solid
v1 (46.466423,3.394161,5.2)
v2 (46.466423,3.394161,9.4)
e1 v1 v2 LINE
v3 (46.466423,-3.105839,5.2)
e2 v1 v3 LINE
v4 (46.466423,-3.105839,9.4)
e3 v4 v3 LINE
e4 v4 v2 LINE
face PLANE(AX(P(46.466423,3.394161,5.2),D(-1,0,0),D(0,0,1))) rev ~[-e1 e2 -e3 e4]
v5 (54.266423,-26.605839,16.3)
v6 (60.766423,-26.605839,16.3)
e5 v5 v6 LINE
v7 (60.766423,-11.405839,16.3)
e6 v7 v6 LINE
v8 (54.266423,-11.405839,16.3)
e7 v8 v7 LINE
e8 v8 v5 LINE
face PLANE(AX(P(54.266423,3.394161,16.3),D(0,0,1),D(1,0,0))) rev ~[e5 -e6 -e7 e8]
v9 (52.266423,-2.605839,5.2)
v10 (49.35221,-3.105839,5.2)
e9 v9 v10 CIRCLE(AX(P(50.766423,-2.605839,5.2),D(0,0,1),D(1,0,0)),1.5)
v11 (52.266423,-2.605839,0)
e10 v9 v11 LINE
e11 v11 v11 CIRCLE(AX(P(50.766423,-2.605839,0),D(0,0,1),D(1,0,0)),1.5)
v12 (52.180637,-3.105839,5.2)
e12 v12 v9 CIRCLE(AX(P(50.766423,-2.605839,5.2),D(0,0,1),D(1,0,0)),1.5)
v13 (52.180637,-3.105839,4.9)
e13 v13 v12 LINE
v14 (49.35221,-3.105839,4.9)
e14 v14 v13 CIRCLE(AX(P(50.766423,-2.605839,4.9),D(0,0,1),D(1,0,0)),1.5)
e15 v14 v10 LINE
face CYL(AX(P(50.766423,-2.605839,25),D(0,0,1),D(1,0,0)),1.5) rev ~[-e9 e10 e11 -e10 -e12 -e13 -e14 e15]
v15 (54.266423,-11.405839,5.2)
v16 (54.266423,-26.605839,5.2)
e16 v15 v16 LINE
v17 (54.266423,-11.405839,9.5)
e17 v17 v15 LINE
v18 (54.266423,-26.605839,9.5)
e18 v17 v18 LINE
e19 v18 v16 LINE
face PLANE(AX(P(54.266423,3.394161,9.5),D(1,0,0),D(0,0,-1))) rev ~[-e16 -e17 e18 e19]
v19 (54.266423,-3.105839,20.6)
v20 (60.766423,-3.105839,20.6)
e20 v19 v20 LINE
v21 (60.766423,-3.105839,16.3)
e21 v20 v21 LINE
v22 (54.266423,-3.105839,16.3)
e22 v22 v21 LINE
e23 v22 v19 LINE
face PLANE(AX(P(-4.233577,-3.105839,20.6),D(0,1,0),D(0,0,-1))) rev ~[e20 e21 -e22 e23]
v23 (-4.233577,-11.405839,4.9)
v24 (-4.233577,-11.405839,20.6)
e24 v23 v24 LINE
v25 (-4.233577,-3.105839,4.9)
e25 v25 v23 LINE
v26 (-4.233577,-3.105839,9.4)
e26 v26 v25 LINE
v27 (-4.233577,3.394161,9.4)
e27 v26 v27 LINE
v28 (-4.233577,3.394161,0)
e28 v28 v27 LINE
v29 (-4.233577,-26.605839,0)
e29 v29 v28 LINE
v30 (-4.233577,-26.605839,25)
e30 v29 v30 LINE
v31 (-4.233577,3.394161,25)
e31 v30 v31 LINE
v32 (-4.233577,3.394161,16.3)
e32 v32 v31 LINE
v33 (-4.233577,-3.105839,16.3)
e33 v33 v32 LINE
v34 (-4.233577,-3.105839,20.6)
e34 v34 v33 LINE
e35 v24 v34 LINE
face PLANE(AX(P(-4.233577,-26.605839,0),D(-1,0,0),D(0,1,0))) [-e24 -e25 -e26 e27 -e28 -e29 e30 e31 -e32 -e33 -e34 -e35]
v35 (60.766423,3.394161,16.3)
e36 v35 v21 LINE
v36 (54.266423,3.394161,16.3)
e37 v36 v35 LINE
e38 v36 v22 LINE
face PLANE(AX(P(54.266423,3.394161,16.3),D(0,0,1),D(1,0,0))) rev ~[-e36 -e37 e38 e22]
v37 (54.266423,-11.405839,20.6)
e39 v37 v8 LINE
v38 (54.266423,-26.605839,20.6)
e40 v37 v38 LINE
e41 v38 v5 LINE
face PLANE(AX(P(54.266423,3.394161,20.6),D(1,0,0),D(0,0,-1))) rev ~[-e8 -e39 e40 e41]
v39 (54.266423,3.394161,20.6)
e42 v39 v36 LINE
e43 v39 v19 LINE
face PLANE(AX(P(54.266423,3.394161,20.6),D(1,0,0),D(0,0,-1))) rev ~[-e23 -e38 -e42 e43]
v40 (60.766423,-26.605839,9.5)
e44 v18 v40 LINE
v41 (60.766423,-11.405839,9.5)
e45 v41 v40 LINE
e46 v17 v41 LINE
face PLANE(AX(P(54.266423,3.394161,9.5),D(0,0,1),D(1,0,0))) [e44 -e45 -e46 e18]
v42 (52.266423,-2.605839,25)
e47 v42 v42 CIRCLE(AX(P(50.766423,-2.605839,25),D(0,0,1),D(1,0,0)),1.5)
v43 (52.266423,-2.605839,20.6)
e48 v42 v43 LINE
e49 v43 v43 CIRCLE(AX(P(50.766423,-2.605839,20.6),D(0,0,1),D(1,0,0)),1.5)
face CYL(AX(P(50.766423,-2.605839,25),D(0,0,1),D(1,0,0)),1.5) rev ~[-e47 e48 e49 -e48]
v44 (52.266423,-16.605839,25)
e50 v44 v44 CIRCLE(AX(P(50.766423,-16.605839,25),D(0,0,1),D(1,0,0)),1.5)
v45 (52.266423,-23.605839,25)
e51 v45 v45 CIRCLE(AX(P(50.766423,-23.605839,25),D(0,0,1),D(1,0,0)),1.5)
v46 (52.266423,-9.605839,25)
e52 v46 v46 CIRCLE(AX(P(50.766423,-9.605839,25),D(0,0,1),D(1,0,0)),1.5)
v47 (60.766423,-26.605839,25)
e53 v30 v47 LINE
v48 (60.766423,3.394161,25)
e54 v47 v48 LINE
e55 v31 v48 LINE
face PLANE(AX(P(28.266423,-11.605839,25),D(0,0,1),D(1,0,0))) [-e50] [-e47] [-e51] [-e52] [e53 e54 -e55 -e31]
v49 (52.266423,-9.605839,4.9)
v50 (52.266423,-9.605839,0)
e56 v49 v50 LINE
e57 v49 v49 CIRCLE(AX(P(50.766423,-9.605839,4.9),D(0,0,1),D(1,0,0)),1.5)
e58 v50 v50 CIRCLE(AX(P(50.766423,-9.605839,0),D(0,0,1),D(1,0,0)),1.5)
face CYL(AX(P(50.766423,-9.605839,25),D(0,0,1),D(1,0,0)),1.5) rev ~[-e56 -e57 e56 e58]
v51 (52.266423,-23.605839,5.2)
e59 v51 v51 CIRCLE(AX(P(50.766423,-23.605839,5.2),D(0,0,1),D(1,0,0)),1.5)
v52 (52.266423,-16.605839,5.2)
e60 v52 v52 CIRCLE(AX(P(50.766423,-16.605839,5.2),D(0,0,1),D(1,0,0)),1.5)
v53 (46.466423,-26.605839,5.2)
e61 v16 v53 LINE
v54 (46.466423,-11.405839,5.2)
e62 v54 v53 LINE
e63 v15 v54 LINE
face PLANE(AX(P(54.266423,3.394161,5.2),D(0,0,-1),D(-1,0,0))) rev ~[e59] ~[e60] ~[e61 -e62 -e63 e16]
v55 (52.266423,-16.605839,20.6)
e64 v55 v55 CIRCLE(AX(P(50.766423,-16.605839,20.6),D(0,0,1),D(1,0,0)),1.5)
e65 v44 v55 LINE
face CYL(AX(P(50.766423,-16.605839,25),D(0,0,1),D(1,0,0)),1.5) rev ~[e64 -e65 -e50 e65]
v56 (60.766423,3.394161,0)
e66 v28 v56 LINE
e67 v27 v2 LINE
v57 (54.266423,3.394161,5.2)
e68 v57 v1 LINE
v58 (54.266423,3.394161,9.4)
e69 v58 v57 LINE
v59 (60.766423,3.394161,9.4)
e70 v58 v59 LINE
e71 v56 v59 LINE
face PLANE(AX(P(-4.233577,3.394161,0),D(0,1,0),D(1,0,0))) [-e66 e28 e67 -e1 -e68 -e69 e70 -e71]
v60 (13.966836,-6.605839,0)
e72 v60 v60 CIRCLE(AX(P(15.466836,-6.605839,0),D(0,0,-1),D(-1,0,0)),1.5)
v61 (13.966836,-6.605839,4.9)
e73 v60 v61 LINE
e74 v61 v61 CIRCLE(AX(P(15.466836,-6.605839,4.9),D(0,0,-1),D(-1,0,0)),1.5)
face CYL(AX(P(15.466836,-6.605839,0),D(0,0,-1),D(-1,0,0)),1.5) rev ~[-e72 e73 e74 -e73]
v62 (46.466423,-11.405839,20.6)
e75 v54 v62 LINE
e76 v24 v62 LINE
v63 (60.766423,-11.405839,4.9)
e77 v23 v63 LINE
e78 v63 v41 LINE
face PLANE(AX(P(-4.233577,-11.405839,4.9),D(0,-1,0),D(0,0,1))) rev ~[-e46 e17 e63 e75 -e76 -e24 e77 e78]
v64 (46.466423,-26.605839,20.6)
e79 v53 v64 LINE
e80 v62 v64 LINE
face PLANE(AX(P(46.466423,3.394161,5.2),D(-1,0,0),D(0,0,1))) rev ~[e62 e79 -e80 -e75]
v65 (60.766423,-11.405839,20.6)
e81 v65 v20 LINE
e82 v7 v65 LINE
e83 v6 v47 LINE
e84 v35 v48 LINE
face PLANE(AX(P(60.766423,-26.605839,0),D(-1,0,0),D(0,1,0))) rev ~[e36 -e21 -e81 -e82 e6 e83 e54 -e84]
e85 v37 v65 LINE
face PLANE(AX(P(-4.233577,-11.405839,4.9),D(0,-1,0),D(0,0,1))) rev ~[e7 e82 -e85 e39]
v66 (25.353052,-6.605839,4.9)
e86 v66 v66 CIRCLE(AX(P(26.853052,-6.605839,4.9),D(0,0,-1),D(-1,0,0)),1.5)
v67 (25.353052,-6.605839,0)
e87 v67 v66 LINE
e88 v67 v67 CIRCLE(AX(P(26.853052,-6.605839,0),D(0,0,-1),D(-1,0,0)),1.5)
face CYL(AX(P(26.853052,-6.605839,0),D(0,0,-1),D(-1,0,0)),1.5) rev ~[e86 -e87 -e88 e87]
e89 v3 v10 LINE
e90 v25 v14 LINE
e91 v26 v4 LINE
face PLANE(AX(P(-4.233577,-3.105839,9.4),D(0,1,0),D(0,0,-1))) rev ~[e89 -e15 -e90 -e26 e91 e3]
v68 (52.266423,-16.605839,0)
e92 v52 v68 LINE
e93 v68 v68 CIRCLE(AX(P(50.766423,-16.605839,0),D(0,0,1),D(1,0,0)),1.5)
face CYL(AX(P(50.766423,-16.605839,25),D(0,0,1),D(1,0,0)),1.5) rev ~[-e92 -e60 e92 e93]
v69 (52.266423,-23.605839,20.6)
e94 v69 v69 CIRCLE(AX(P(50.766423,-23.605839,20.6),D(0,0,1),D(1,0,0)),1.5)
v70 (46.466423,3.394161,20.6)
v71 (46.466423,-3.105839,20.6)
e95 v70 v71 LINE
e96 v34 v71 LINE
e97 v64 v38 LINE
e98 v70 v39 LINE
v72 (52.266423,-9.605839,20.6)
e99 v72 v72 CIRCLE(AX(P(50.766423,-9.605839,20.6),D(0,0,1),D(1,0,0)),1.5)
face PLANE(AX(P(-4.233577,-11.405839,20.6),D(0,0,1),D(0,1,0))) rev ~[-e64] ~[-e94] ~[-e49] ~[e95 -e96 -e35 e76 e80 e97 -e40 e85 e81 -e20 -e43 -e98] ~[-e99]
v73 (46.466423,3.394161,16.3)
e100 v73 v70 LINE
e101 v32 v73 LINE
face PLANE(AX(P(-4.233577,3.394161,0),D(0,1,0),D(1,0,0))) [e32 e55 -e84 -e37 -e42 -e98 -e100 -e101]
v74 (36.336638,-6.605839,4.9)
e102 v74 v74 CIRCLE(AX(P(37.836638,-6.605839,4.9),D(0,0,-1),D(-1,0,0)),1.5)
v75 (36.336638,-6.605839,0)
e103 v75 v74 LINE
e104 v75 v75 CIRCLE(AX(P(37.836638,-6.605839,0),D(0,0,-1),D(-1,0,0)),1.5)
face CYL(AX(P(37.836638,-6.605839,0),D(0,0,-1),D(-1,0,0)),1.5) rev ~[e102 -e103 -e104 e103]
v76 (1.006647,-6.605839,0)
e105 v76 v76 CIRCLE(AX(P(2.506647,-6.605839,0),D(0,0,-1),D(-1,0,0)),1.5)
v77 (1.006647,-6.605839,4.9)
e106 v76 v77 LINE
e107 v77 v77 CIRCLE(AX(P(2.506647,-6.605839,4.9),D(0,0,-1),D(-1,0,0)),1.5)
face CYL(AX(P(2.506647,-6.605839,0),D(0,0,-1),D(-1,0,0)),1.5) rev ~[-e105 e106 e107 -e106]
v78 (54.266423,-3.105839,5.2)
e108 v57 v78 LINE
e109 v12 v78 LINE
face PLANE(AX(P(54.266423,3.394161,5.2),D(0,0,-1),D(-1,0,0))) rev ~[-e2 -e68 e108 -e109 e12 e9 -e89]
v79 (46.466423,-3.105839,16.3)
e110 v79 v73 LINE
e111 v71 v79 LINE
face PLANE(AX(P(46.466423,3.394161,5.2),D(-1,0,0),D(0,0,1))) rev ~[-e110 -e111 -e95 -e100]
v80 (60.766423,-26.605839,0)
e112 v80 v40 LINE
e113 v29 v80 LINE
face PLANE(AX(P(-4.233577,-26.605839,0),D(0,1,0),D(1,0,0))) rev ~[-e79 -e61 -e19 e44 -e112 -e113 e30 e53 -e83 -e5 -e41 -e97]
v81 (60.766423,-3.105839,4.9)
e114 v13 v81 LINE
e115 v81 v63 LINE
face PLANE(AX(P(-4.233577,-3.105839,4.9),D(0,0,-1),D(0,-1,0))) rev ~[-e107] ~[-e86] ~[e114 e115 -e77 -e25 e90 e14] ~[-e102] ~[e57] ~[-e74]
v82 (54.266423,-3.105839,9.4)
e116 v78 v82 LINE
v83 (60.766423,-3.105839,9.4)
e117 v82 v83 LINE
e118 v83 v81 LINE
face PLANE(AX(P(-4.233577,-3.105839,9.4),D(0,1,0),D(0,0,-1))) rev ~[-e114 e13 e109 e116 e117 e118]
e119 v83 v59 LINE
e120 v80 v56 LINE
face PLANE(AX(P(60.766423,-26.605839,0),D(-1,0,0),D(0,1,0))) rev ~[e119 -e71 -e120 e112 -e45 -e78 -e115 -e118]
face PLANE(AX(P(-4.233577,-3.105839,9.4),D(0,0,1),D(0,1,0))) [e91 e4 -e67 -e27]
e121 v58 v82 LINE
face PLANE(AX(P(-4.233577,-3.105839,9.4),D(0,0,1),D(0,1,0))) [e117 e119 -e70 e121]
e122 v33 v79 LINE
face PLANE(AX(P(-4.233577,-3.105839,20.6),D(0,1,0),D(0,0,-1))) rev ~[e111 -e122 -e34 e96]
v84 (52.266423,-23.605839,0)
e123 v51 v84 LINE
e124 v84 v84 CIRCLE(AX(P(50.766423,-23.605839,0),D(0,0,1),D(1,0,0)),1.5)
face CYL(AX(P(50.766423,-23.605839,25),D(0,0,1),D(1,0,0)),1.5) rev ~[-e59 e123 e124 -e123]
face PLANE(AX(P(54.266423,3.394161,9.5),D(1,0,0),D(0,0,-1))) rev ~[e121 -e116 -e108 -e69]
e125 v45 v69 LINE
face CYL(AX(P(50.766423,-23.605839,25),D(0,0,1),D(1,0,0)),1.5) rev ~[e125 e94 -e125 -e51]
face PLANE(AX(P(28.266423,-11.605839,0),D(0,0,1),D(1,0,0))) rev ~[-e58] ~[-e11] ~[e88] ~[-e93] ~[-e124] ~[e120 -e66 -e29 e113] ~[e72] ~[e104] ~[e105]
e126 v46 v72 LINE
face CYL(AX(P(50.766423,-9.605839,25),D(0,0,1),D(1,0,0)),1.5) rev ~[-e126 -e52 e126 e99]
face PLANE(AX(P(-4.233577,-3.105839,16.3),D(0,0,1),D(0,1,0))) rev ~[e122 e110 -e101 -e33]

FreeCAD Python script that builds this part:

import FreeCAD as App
import Part
import Sketcher
from FreeCAD import Vector


def add_polygon(sketch, points):
    """Adds a closed chain of lines whose ends are joined by coincident constraints."""
    first, n = sketch.GeometryCount, len(points)
    for a, b in zip(points, points[1:] + points[:1]):
        sketch.addGeometry(Part.LineSegment(App.Vector(*a, 0), App.Vector(*b, 0)), False)
    for i in range(n):
        sketch.addConstraint(Sketcher.Constraint("Coincident", first + i, 2, first + (i + 1) % n, 1))

doc = App.newDocument("Part")
params = doc.addObject("Spreadsheet::Sheet", "Params")
for row, (alias, value) in enumerate([
    ("sketch1_width", "65 mm"),
    ("sketch1_height", "30 mm"),
    ("pad1_length", "25 mm"),
    ("sketch2_width", "6.5 mm"),
    ("sketch2_width2", "7.8 mm"),
    ("sketch2_height", "6.8 mm"),
    ("sketch2_height2", "4.3 mm"),
    ("sketch3_diameter", "3 mm"),
    ("sketch4_width", "8.3 mm"),
    ("sketch4_width2", "6.5 mm"),
    ("sketch4_height", "15.7 mm"),
    ("sketch4_height2", "4.3 mm"),
    ("sketch4_height3", "6.9 mm"),
    ("sketch5_diameter", "3 mm"),
    ("pocket4_length", "10 mm"),
], start=1):
    params.set(f"A{row}", alias)
    params.set(f"B{row}", "=" + value)
    params.setAlias(f"B{row}", alias)

body = doc.addObject("PartDesign::Body", "Body")

# Sketch on XY plane
sketch1 = doc.addObject("Sketcher::SketchObject", "Sketch")
body.addObject(sketch1)
sketch1.AttachmentSupport = (doc.XY_Plane, [""])
sketch1.MapMode = "FlatFace"
add_polygon(sketch1, [(-4, 3), (-4, -27), (61, -27), (61, 3)])  # lines 0-3
sketch1.addConstraint(Sketcher.Constraint("Vertical", 0))
sketch1.addConstraint(Sketcher.Constraint("Horizontal", 1))
sketch1.addConstraint(Sketcher.Constraint("Vertical", 2))
sketch1.addConstraint(Sketcher.Constraint("Horizontal", 3))
sketch1.addConstraint(Sketcher.Constraint("DistanceX", 1, 1, 1, 2, 65.0))
sketch1.addConstraint(Sketcher.Constraint("DistanceY", 0, 2, 0, 1, 30.0))
sketch1.addConstraint(Sketcher.Constraint("DistanceY", 0, 2, -1, 1, 26.605839))
sketch1.addConstraint(Sketcher.Constraint("DistanceX", 0, 2, -1, 1, 4.233577))
sketch1.setExpression("Constraints[8]", "Params.sketch1_width")
sketch1.setExpression("Constraints[9]", "Params.sketch1_height")
pad1 = doc.addObject("PartDesign::Pad", "Pad")
body.addObject(pad1)
pad1.Profile = sketch1
pad1.setExpression("Length", "Params.pad1_length")

# Sketch on XZ plane
sketch2 = doc.addObject("Sketcher::SketchObject", "Sketch001")
body.addObject(sketch2)
sketch2.AttachmentSupport = (doc.XZ_Plane, [""])
sketch2.MapMode = "FlatFace"
sketch2.AttachmentOffset = App.Placement(Vector(0, 0, -3.394161), App.Rotation())
add_polygon(sketch2, [(54.3, 16.3), (60.8, 16.3), (60.8, 9.5), (54.3, 9.5), (54.3, 5.2), (46.5, 5.2), (46.5, 20.6), (54.3, 20.6)])  # lines 0-7
sketch2.addConstraint(Sketcher.Constraint("Horizontal", 0))
sketch2.addConstraint(Sketcher.Constraint("Vertical", 1))
sketch2.addConstraint(Sketcher.Constraint("Horizontal", 2))
sketch2.addConstraint(Sketcher.Constraint("Vertical", 3))
sketch2.addConstraint(Sketcher.Constraint("Horizontal", 4))
sketch2.addConstraint(Sketcher.Constraint("Vertical", 5))
sketch2.addConstraint(Sketcher.Constraint("Horizontal", 6))
sketch2.addConstraint(Sketcher.Constraint("Vertical", 7))
sketch2.addConstraint(Sketcher.Constraint("Vertical", 3, 2, 6, 2))
sketch2.addConstraint(Sketcher.Constraint("Equal", 3, 7))
sketch2.addConstraint(Sketcher.Constraint("DistanceX", 0, 1, 0, 2, 6.5))
sketch2.addConstraint(Sketcher.Constraint("DistanceX", 4, 2, 4, 1, 7.8))
sketch2.addConstraint(Sketcher.Constraint("DistanceY", 1, 2, 1, 1, 6.8))
sketch2.addConstraint(Sketcher.Constraint("DistanceY", 3, 2, 3, 1, 4.3))
sketch2.addConstraint(Sketcher.Constraint("DistanceY", -1, 1, 0, 2, 16.3))
sketch2.addConstraint(Sketcher.Constraint("DistanceX", -1, 1, 0, 2, 60.766423))
sketch2.setExpression("Constraints[18]", "Params.sketch2_width")
sketch2.setExpression("Constraints[19]", "Params.sketch2_width2")
sketch2.setExpression("Constraints[20]", "Params.sketch2_height")
sketch2.setExpression("Constraints[21]", "Params.sketch2_height2")
pocket1 = doc.addObject("PartDesign::Pocket", "Pocket")
body.addObject(pocket1)
pocket1.Profile = sketch2
pocket1.Type = "ThroughAll"
pocket1.Reversed = True

# Sketch on XY plane
sketch3 = doc.addObject("Sketcher::SketchObject", "Sketch002")
body.addObject(sketch3)
sketch3.AttachmentSupport = (doc.XY_Plane, [""])
sketch3.MapMode = "FlatFace"
sketch3.AttachmentOffset = App.Placement(Vector(0, 0, 25), App.Rotation())
sketch3.addGeometry(Part.Circle(Vector(50.8, -2.6, 0), Vector(0, 0, 1), 1.5), False)
sketch3.addGeometry(Part.Circle(Vector(50.8, -9.6, 0), Vector(0, 0, 1), 1.5), False)
sketch3.addGeometry(Part.Circle(Vector(50.8, -16.6, 0), Vector(0, 0, 1), 1.5), False)
sketch3.addGeometry(Part.Circle(Vector(50.8, -23.6, 0), Vector(0, 0, 1), 1.5), False)
sketch3.addConstraint(Sketcher.Constraint("Equal", 0, 1))
sketch3.addConstraint(Sketcher.Constraint("Equal", 1, 2))
sketch3.addConstraint(Sketcher.Constraint("Equal", 2, 3))
sketch3.addConstraint(Sketcher.Constraint("Vertical", 0, 3, 1, 3))
sketch3.addConstraint(Sketcher.Constraint("Vertical", 1, 3, 2, 3))
sketch3.addConstraint(Sketcher.Constraint("Vertical", 2, 3, 3, 3))
sketch3.addConstraint(Sketcher.Constraint("Diameter", 0, 3.0))
sketch3.addConstraint(Sketcher.Constraint("DistanceY", 1, 3, 0, 3, 7.0))
sketch3.addConstraint(Sketcher.Constraint("DistanceY", 2, 3, 1, 3, 7.0))
sketch3.addConstraint(Sketcher.Constraint("DistanceY", 3, 3, 2, 3, 7.0))
sketch3.addConstraint(Sketcher.Constraint("DistanceY", 0, 3, -1, 1, 2.605839))
sketch3.addConstraint(Sketcher.Constraint("DistanceX", -1, 1, 0, 3, 50.766423))
sketch3.setExpression("Constraints[6]", "Params.sketch3_diameter")
pocket2 = doc.addObject("PartDesign::Pocket", "Pocket001")
body.addObject(pocket2)
pocket2.Profile = sketch3
pocket2.Type = "ThroughAll"

# Sketch on YZ plane
sketch4 = doc.addObject("Sketcher::SketchObject", "Sketch003")
body.addObject(sketch4)
sketch4.AttachmentSupport = (doc.YZ_Plane, [""])
sketch4.MapMode = "FlatFace"
sketch4.AttachmentOffset = App.Placement(Vector(0, 0, -4.233577), App.Rotation())
add_polygon(sketch4, [(-3.1, 4.9), (-11.4, 4.9), (-11.4, 20.6), (-3.1, 20.6), (-3.1, 16.3), (3.4, 16.3), (3.4, 9.4), (-3.1, 9.4)])  # lines 0-7
sketch4.addConstraint(Sketcher.Constraint("Horizontal", 0))
sketch4.addConstraint(Sketcher.Constraint("Vertical", 1))
sketch4.addConstraint(Sketcher.Constraint("Horizontal", 2))
sketch4.addConstraint(Sketcher.Constraint("Vertical", 3))
sketch4.addConstraint(Sketcher.Constraint("Horizontal", 4))
sketch4.addConstraint(Sketcher.Constraint("Vertical", 5))
sketch4.addConstraint(Sketcher.Constraint("Horizontal", 6))
sketch4.addConstraint(Sketcher.Constraint("Vertical", 7))
sketch4.addConstraint(Sketcher.Constraint("Vertical", 3, 2, 6, 2))
sketch4.addConstraint(Sketcher.Constraint("DistanceX", 0, 2, 0, 1, 8.3))
sketch4.addConstraint(Sketcher.Constraint("DistanceX", 4, 1, 4, 2, 6.5))
sketch4.addConstraint(Sketcher.Constraint("DistanceY", 1, 1, 1, 2, 15.7))
sketch4.addConstraint(Sketcher.Constraint("DistanceY", 3, 2, 3, 1, 4.3))
sketch4.addConstraint(Sketcher.Constraint("DistanceY", 5, 2, 5, 1, 6.9))
sketch4.addConstraint(Sketcher.Constraint("DistanceY", -1, 1, 0, 2, 4.9))
sketch4.addConstraint(Sketcher.Constraint("DistanceX", 0, 2, -1, 1, 11.405839))
sketch4.setExpression("Constraints[17]", "Params.sketch4_width")
sketch4.setExpression("Constraints[18]", "Params.sketch4_width2")
sketch4.setExpression("Constraints[19]", "Params.sketch4_height")
sketch4.setExpression("Constraints[20]", "Params.sketch4_height2")
sketch4.setExpression("Constraints[21]", "Params.sketch4_height3")
pocket3 = doc.addObject("PartDesign::Pocket", "Pocket002")
body.addObject(pocket3)
pocket3.Profile = sketch4
pocket3.Type = "ThroughAll"
pocket3.Reversed = True

# Sketch on XY plane
sketch5 = doc.addObject("Sketcher::SketchObject", "Sketch004")
body.addObject(sketch5)
sketch5.AttachmentSupport = (doc.XY_Plane, [""])
sketch5.MapMode = "FlatFace"
sketch5.addGeometry(Part.Circle(Vector(2.5, -6.6, 0), Vector(0, 0, 1), 1.5), False)
sketch5.addGeometry(Part.Circle(Vector(15.5, -6.6, 0), Vector(0, 0, 1), 1.5), False)
sketch5.addGeometry(Part.Circle(Vector(26.9, -6.6, 0), Vector(0, 0, 1), 1.5), False)
sketch5.addGeometry(Part.Circle(Vector(37.8, -6.6, 0), Vector(0, 0, 1), 1.5), False)
sketch5.addConstraint(Sketcher.Constraint("Equal", 0, 1))
sketch5.addConstraint(Sketcher.Constraint("Equal", 1, 2))
sketch5.addConstraint(Sketcher.Constraint("Equal", 2, 3))
sketch5.addConstraint(Sketcher.Constraint("Horizontal", 0, 3, 1, 3))
sketch5.addConstraint(Sketcher.Constraint("Horizontal", 1, 3, 2, 3))
sketch5.addConstraint(Sketcher.Constraint("Horizontal", 2, 3, 3, 3))
sketch5.addConstraint(Sketcher.Constraint("Diameter", 0, 3.0))
sketch5.addConstraint(Sketcher.Constraint("DistanceY", 0, 3, -1, 1, 6.605839))
sketch5.addConstraint(Sketcher.Constraint("DistanceX", -1, 1, 2, 3, 26.853052))
sketch5.addConstraint(Sketcher.Constraint("DistanceX", 0, 3, 1, 3, 12.960189))
sketch5.addConstraint(Sketcher.Constraint("DistanceX", 0, 3, 3, 3, 35.329991))
sketch5.addConstraint(Sketcher.Constraint("DistanceX", -1, 1, 0, 3, 2.506647))
sketch5.setExpression("Constraints[6]", "Params.sketch5_diameter")
pocket4 = doc.addObject("PartDesign::Pocket", "Pocket003")
body.addObject(pocket4)
pocket4.Profile = sketch5
pocket4.setExpression("Length", "Params.pocket4_length")
pocket4.Reversed = True

doc.recompute()
